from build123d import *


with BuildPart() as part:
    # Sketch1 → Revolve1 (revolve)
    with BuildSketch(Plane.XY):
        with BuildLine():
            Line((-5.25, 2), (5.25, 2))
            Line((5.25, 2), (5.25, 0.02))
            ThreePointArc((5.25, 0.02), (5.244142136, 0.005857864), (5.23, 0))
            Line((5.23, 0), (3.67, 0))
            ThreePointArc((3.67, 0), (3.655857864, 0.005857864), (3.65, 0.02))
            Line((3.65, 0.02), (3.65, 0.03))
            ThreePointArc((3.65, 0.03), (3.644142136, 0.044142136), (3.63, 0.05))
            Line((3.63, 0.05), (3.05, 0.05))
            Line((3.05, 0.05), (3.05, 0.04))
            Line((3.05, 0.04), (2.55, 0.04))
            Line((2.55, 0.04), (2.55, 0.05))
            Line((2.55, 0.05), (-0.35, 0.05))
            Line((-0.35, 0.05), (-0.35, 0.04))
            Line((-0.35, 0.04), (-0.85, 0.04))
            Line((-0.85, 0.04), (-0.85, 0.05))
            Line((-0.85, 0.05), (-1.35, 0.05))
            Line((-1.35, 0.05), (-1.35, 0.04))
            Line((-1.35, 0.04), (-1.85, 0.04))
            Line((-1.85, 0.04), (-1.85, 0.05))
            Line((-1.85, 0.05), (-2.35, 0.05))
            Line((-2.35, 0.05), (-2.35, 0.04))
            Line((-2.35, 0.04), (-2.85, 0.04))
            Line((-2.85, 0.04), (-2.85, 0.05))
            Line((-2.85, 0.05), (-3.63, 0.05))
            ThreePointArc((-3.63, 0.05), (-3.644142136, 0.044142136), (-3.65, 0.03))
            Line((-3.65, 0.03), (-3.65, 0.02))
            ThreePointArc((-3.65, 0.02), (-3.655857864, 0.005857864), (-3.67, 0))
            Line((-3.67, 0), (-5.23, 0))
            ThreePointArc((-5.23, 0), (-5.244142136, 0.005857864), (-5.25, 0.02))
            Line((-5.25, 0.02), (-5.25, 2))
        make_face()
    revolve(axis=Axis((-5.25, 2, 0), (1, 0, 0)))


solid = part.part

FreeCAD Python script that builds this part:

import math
import FreeCAD as App
import Part
import Sketcher
from FreeCAD import Vector

doc = App.newDocument("Part")
body = doc.addObject("PartDesign::Body", "Body")

sketch1 = body.newObject("Sketcher::SketchObject", "Sketch")
sketch1.AttachmentSupport = (doc.getObject("XY_Plane"), [""])
sketch1.MapMode = "FlatFace"
sketch1.addGeometry(Part.LineSegment(Vector(5.25, 2, 0), Vector(-5.25, 2, 0)), False)
sketch1.addGeometry(Part.LineSegment(Vector(-5.25, 2, 0), Vector(-5.25, 0.02, 0)), False)
sketch1.addGeometry(Part.ArcOfCircle(Part.Circle(Vector(-5.23, 0.02, 0), Vector(0, 0, 1), 0.02), math.radians(180), math.radians(270)), False)
sketch1.addGeometry(Part.LineSegment(Vector(-5.23, 0, 0), Vector(-3.67, 0, 0)), False)
sketch1.addGeometry(Part.ArcOfCircle(Part.Circle(Vector(-3.67, 0.02, 0), Vector(0, 0, 1), 0.02), math.radians(-90), math.radians(0)), False)
sketch1.addGeometry(Part.LineSegment(Vector(-3.65, 0.02, 0), Vector(-3.65, 0.03, 0)), False)
sketch1.addGeometry(Part.ArcOfCircle(Part.Circle(Vector(-3.63, 0.03, 0), Vector(0, 0, 1), 0.02), math.radians(90), math.radians(180)), False)
sketch1.addGeometry(Part.LineSegment(Vector(-3.63, 0.05, 0), Vector(-2.85, 0.05, 0)), False)
sketch1.addGeometry(Part.LineSegment(Vector(-2.85, 0.05, 0), Vector(-2.85, 0.04, 0)), False)
sketch1.addGeometry(Part.LineSegment(Vector(-2.85, 0.04, 0), Vector(-2.35, 0.04, 0)), False)
sketch1.addGeometry(Part.LineSegment(Vector(-2.35, 0.04, 0), Vector(-2.35, 0.05, 0)), False)
sketch1.addGeometry(Part.LineSegment(Vector(-2.35, 0.05, 0), Vector(-1.85, 0.05, 0)), False)
sketch1.addGeometry(Part.LineSegment(Vector(-1.85, 0.05, 0), Vector(-1.85, 0.04, 0)), False)
sketch1.addGeometry(Part.LineSegment(Vector(-1.85, 0.04, 0), Vector(-1.35, 0.04, 0)), False)
sketch1.addGeometry(Part.LineSegment(Vector(-1.35, 0.04, 0), Vector(-1.35, 0.05, 0)), False)
sketch1.addGeometry(Part.LineSegment(Vector(-1.35, 0.05, 0), Vector(-0.85, 0.05, 0)), False)
sketch1.addGeometry(Part.LineSegment(Vector(-0.85, 0.05, 0), Vector(-0.85, 0.04, 0)), False)
sketch1.addGeometry(Part.LineSegment(Vector(-0.85, 0.04, 0), Vector(-0.35, 0.04, 0)), False)
sketch1.addGeometry(Part.LineSegment(Vector(-0.35, 0.04, 0), Vector(-0.35, 0.05, 0)), False)
sketch1.addGeometry(Part.LineSegment(Vector(-0.35, 0.05, 0), Vector(2.55, 0.05, 0)), False)
sketch1.addGeometry(Part.LineSegment(Vector(2.55, 0.05, 0), Vector(2.55, 0.04, 0)), False)
sketch1.addGeometry(Part.LineSegment(Vector(2.55, 0.04, 0), Vector(3.05, 0.04, 0)), False)
sketch1.addGeometry(Part.LineSegment(Vector(3.05, 0.04, 0), Vector(3.05, 0.05, 0)), False)
sketch1.addGeometry(Part.LineSegment(Vector(3.05, 0.05, 0), Vector(3.63, 0.05, 0)), False)
sketch1.addGeometry(Part.ArcOfCircle(Part.Circle(Vector(3.63, 0.03, 0), Vector(0, 0, 1), 0.02), math.radians(0), math.radians(90)), False)
sketch1.addGeometry(Part.LineSegment(Vector(3.65, 0.03, 0), Vector(3.65, 0.02, 0)), False)
sketch1.addGeometry(Part.ArcOfCircle(Part.Circle(Vector(3.67, 0.02, 0), Vector(0, 0, 1), 0.02), math.radians(180), math.radians(270)), False)
sketch1.addGeometry(Part.LineSegment(Vector(3.67, 0, 0), Vector(5.23, 0, 0)), False)
sketch1.addGeometry(Part.ArcOfCircle(Part.Circle(Vector(5.23, 0.02, 0), Vector(0, 0, 1), 0.02), math.radians(-90), math.radians(0)), False)
sketch1.addGeometry(Part.LineSegment(Vector(5.25, 0.02, 0), Vector(5.25, 2, 0)), False)
sketch1.addGeometry(Part.LineSegment(Vector(-5.25, 2, 0), Vector(5.25, 2, 0)), True)
sketch1.addConstraint(Sketcher.Constraint("Coincident", 0, 2, 1, 1))
sketch1.addConstraint(Sketcher.Constraint("Tangent", 1, 2, 2, 1))
sketch1.addConstraint(Sketcher.Constraint("Tangent", 2, 2, 3, 1))
sketch1.addConstraint(Sketcher.Constraint("Tangent", 3, 2, 4, 1))
sketch1.addConstraint(Sketcher.Constraint("Tangent", 4, 2, 5, 1))
sketch1.addConstraint(Sketcher.Constraint("Tangent", 5, 2, 6, 2))
sketch1.addConstraint(Sketcher.Constraint("Tangent", 6, 1, 7, 1))
sketch1.addConstraint(Sketcher.Constraint("Coincident", 7, 2, 8, 1))
sketch1.addConstraint(Sketcher.Constraint("Coincident", 8, 2, 9, 1))
sketch1.addConstraint(Sketcher.Constraint("Coincident", 9, 2, 10, 1))
sketch1.addConstraint(Sketcher.Constraint("Coincident", 10, 2, 11, 1))
sketch1.addConstraint(Sketcher.Constraint("Coincident", 11, 2, 12, 1))
sketch1.addConstraint(Sketcher.Constraint("Coincident", 12, 2, 13, 1))
sketch1.addConstraint(Sketcher.Constraint("Coincident", 13, 2, 14, 1))
sketch1.addConstraint(Sketcher.Constraint("Coincident", 14, 2, 15, 1))
sketch1.addConstraint(Sketcher.Constraint("Coincident", 15, 2, 16, 1))
sketch1.addConstraint(Sketcher.Constraint("Coincident", 16, 2, 17, 1))
sketch1.addConstraint(Sketcher.Constraint("Coincident", 17, 2, 18, 1))
sketch1.addConstraint(Sketcher.Constraint("Coincident", 18, 2, 19, 1))
sketch1.addConstraint(Sketcher.Constraint("Coincident", 19, 2, 20, 1))
sketch1.addConstraint(Sketcher.Constraint("Coincident", 20, 2, 21, 1))
sketch1.addConstraint(Sketcher.Constraint("Coincident", 21, 2, 22, 1))
sketch1.addConstraint(Sketcher.Constraint("Coincident", 22, 2, 23, 1))
sketch1.addConstraint(Sketcher.Constraint("Tangent", 23, 2, 24, 2))
sketch1.addConstraint(Sketcher.Constraint("Tangent", 24, 1, 25, 1))
sketch1.addConstraint(Sketcher.Constraint("Tangent", 25, 2, 26, 1))
sketch1.addConstraint(Sketcher.Constraint("Tangent", 26, 2, 27, 1))
sketch1.addConstraint(Sketcher.Constraint("Tangent", 27, 2, 28, 1))
sketch1.addConstraint(Sketcher.Constraint("Tangent", 28, 2, 29, 1))
sketch1.addConstraint(Sketcher.Constraint("Coincident", 29, 2, 0, 1))
sketch1.addConstraint(Sketcher.Constraint("Horizontal", 0))
sketch1.addConstraint(Sketcher.Constraint("Vertical", 1))
sketch1.addConstraint(Sketcher.Constraint("Horizontal", 3))
sketch1.addConstraint(Sketcher.Constraint("Vertical", 5))
sketch1.addConstraint(Sketcher.Constraint("Horizontal", 7))
sketch1.addConstraint(Sketcher.Constraint("Vertical", 8))
sketch1.addConstraint(Sketcher.Constraint("Horizontal", 9))
sketch1.addConstraint(Sketcher.Constraint("Vertical", 10))
sketch1.addConstraint(Sketcher.Constraint("Horizontal", 11))
sketch1.addConstraint(Sketcher.Constraint("Vertical", 12))
sketch1.addConstraint(Sketcher.Constraint("Horizontal", 13))
sketch1.addConstraint(Sketcher.Constraint("Vertical", 14))
sketch1.addConstraint(Sketcher.Constraint("Horizontal", 15))
sketch1.addConstraint(Sketcher.Constraint("Vertical", 16))
sketch1.addConstraint(Sketcher.Constraint("Horizontal", 17))
sketch1.addConstraint(Sketcher.Constraint("Vertical", 18))
sketch1.addConstraint(Sketcher.Constraint("Horizontal", 19))
sketch1.addConstraint(Sketcher.Constraint("Vertical", 20))
sketch1.addConstraint(Sketcher.Constraint("Horizontal", 21))
sketch1.addConstraint(Sketcher.Constraint("Vertical", 22))
sketch1.addConstraint(Sketcher.Constraint("Horizontal", 23))
sketch1.addConstraint(Sketcher.Constraint("Vertical", 25))
sketch1.addConstraint(Sketcher.Constraint("Horizontal", 27))
sketch1.addConstraint(Sketcher.Constraint("Vertical", 29))
sketch1.addConstraint(Sketcher.Constraint("Horizontal", 30))
sketch1.addConstraint(Sketcher.Constraint("Coincident", 30, 1, 0, 2))
sketch1.addConstraint(Sketcher.Constraint("Equal", 2, 4))
sketch1.addConstraint(Sketcher.Constraint("Equal", 4, 6))
sketch1.addConstraint(Sketcher.Constraint("Equal", 6, 24))
sketch1.addConstraint(Sketcher.Constraint("Equal", 24, 26))
sketch1.addConstraint(Sketcher.Constraint("Equal", 26, 28))
sketch1.addConstraint(Sketcher.Constraint("Symmetric", 3, 2, 26, 2, -1, 1))
sketch1.addConstraint(Sketcher.Constraint("Symmetric", 2, 3, 28, 3, -2))
sketch1.addConstraint(Sketcher.Constraint("Horizontal", 6, 3, 24, 3))
sketch1.addConstraint(Sketcher.Constraint("Horizontal", 7, 2, 10, 2))
sketch1.addConstraint(Sketcher.Constraint("Horizontal", 9, 2, 12, 2))
sketch1.addConstraint(Sketcher.Constraint("Horizontal", 11, 2, 14, 2))
sketch1.addConstraint(Sketcher.Constraint("Horizontal", 13, 2, 16, 2))
sketch1.addConstraint(Sketcher.Constraint("Horizontal", 15, 2, 18, 2))
sketch1.addConstraint(Sketcher.Constraint("Horizontal", 17, 2, 20, 2))
sketch1.addConstraint(Sketcher.Constraint("Vertical", 28, 2, 30, 2))
sketch1.addConstraint(Sketcher.Constraint("Equal", 9, 11))
sketch1.addConstraint(Sketcher.Constraint("Equal", 11, 13))
sketch1.addConstraint(Sketcher.Constraint("Equal", 13, 15))
sketch1.addConstraint(Sketcher.Constraint("Equal", 15, 17))
sketch1.addConstraint(Sketcher.Constraint("Equal", 17, 21))
sketch1.addConstraint(Sketcher.Constraint("Equal", 5, 8))
sketch1.addConstraint(Sketcher.Constraint("Radius", 2, 0.02))
sketch1.addConstraint(Sketcher.Constraint("DistanceX", 0, 2, 0, 1, 10.5))
sketch1.addConstraint(Sketcher.Constraint("DistanceX", 9, 1, 9, 2, 0.5))
sketch1.addConstraint(Sketcher.Constraint("DistanceX", 19, 1, 19, 2, 2.9))
sketch1.addConstraint(Sketcher.Constraint("DistanceY", -1, 1, 0, 2, 2.0))
sketch1.addConstraint(Sketcher.Constraint("DistanceX", 3, 1, 3, 2, 1.56))
sketch1.addConstraint(Sketcher.Constraint("DistanceX", 7, 1, 7, 2, 0.78))
sketch1.addConstraint(Sketcher.Constraint("DistanceY", 5, 1, 5, 2, 0.01))
revolution = body.newObject("PartDesign::Revolution", "Revolution")
revolution.Profile = sketch1
revolution.ReferenceAxis = (sketch1, ["Axis0"])
revolution.Angle = 360

doc.recompute()
